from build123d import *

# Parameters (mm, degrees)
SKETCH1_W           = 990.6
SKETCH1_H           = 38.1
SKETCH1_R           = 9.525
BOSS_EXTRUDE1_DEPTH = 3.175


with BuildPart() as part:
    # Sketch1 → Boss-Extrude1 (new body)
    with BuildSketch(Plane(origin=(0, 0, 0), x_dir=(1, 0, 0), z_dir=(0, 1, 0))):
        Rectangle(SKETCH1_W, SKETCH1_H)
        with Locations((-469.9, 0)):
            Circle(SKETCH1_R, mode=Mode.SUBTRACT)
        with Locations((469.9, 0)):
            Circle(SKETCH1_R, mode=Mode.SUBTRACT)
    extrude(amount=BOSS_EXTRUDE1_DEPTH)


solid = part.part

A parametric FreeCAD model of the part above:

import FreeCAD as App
import Part
import Sketcher

V = App.Vector
Q = App.Units.Quantity


def add_polygon(sketch, points):
    """Adds a closed chain of lines whose ends are joined by coincident constraints."""
    first, n = sketch.GeometryCount, len(points)
    for a, b in zip(points, points[1:] + points[:1]):
        sketch.addGeometry(Part.LineSegment(App.Vector(*a, 0), App.Vector(*b, 0)), False)
    for i in range(n):
        sketch.addConstraint(Sketcher.Constraint("Coincident", first + i, 2, first + (i + 1) % n, 1))

doc = App.newDocument("Part")
params = doc.addObject("Spreadsheet::Sheet", "Params")
for row, (alias, value) in enumerate([
    ("sketch1_diameter", "0.75 in"),
    ("sketch1_width", "39 in"),
    ("sketch1_height", "1.5 in"),
    ("pad1_length", "0.125 in"),
], start=1):
    params.set(f"A{row}", alias)
    params.set(f"B{row}", "=" + value)
    params.setAlias(f"B{row}", alias)

body = doc.addObject("PartDesign::Body", "Body")

sketch1 = body.newObject("Sketcher::SketchObject", "Sketch")
sketch1.AttachmentSupport = (doc.getObject("XZ_Plane"), [""])
sketch1.MapMode = "FlatFace"
add_polygon(sketch1, [(-495, -19), (-495, 19), (495, 19), (495, -19)])
sketch1.addGeometry(Part.Circle(V(-470, 0, 0), V(0, 0, 1), 10), False)
sketch1.addGeometry(Part.Circle(V(470, 0, 0), V(0, 0, 1), 10), False)
sketch1.addConstraint(Sketcher.Constraint("Vertical", 0))
sketch1.addConstraint(Sketcher.Constraint("Horizontal", 1))
sketch1.addConstraint(Sketcher.Constraint("Vertical", 2))
sketch1.addConstraint(Sketcher.Constraint("Horizontal", 3))
sketch1.addConstraint(Sketcher.Constraint("Equal", 4, 5))
sketch1.addConstraint(Sketcher.Constraint("Symmetric", 4, 3, 5, 3, -1, 1))
sketch1.addConstraint(Sketcher.Constraint("Symmetric", 0, 2, 2, 2, -1, 1))
sketch1.addConstraint(Sketcher.Constraint("PointOnObject", 4, 3, -1))
sketch1.addConstraint(Sketcher.Constraint("Diameter", 4, Q("0.75 in")))
sketch1.addConstraint(Sketcher.Constraint("DistanceX", 1, 1, 1, 2, Q("39 in")))
sketch1.addConstraint(Sketcher.Constraint("DistanceY", 0, 1, 0, 2, Q("1.5 in")))
sketch1.addConstraint(Sketcher.Constraint("DistanceX", 4, 3, 5, 3, Q("37 in")))
sketch1.setExpression("Constraints[12]", "Params.sketch1_diameter")
sketch1.setExpression("Constraints[13]", "Params.sketch1_width")
sketch1.setExpression("Constraints[14]", "Params.sketch1_height")
pad1 = body.newObject("PartDesign::Pad", "Pad")
pad1.Profile = sketch1
pad1.setExpression("Length", "Params.pad1_length")
pad1.Reversed = True

doc.recompute()
